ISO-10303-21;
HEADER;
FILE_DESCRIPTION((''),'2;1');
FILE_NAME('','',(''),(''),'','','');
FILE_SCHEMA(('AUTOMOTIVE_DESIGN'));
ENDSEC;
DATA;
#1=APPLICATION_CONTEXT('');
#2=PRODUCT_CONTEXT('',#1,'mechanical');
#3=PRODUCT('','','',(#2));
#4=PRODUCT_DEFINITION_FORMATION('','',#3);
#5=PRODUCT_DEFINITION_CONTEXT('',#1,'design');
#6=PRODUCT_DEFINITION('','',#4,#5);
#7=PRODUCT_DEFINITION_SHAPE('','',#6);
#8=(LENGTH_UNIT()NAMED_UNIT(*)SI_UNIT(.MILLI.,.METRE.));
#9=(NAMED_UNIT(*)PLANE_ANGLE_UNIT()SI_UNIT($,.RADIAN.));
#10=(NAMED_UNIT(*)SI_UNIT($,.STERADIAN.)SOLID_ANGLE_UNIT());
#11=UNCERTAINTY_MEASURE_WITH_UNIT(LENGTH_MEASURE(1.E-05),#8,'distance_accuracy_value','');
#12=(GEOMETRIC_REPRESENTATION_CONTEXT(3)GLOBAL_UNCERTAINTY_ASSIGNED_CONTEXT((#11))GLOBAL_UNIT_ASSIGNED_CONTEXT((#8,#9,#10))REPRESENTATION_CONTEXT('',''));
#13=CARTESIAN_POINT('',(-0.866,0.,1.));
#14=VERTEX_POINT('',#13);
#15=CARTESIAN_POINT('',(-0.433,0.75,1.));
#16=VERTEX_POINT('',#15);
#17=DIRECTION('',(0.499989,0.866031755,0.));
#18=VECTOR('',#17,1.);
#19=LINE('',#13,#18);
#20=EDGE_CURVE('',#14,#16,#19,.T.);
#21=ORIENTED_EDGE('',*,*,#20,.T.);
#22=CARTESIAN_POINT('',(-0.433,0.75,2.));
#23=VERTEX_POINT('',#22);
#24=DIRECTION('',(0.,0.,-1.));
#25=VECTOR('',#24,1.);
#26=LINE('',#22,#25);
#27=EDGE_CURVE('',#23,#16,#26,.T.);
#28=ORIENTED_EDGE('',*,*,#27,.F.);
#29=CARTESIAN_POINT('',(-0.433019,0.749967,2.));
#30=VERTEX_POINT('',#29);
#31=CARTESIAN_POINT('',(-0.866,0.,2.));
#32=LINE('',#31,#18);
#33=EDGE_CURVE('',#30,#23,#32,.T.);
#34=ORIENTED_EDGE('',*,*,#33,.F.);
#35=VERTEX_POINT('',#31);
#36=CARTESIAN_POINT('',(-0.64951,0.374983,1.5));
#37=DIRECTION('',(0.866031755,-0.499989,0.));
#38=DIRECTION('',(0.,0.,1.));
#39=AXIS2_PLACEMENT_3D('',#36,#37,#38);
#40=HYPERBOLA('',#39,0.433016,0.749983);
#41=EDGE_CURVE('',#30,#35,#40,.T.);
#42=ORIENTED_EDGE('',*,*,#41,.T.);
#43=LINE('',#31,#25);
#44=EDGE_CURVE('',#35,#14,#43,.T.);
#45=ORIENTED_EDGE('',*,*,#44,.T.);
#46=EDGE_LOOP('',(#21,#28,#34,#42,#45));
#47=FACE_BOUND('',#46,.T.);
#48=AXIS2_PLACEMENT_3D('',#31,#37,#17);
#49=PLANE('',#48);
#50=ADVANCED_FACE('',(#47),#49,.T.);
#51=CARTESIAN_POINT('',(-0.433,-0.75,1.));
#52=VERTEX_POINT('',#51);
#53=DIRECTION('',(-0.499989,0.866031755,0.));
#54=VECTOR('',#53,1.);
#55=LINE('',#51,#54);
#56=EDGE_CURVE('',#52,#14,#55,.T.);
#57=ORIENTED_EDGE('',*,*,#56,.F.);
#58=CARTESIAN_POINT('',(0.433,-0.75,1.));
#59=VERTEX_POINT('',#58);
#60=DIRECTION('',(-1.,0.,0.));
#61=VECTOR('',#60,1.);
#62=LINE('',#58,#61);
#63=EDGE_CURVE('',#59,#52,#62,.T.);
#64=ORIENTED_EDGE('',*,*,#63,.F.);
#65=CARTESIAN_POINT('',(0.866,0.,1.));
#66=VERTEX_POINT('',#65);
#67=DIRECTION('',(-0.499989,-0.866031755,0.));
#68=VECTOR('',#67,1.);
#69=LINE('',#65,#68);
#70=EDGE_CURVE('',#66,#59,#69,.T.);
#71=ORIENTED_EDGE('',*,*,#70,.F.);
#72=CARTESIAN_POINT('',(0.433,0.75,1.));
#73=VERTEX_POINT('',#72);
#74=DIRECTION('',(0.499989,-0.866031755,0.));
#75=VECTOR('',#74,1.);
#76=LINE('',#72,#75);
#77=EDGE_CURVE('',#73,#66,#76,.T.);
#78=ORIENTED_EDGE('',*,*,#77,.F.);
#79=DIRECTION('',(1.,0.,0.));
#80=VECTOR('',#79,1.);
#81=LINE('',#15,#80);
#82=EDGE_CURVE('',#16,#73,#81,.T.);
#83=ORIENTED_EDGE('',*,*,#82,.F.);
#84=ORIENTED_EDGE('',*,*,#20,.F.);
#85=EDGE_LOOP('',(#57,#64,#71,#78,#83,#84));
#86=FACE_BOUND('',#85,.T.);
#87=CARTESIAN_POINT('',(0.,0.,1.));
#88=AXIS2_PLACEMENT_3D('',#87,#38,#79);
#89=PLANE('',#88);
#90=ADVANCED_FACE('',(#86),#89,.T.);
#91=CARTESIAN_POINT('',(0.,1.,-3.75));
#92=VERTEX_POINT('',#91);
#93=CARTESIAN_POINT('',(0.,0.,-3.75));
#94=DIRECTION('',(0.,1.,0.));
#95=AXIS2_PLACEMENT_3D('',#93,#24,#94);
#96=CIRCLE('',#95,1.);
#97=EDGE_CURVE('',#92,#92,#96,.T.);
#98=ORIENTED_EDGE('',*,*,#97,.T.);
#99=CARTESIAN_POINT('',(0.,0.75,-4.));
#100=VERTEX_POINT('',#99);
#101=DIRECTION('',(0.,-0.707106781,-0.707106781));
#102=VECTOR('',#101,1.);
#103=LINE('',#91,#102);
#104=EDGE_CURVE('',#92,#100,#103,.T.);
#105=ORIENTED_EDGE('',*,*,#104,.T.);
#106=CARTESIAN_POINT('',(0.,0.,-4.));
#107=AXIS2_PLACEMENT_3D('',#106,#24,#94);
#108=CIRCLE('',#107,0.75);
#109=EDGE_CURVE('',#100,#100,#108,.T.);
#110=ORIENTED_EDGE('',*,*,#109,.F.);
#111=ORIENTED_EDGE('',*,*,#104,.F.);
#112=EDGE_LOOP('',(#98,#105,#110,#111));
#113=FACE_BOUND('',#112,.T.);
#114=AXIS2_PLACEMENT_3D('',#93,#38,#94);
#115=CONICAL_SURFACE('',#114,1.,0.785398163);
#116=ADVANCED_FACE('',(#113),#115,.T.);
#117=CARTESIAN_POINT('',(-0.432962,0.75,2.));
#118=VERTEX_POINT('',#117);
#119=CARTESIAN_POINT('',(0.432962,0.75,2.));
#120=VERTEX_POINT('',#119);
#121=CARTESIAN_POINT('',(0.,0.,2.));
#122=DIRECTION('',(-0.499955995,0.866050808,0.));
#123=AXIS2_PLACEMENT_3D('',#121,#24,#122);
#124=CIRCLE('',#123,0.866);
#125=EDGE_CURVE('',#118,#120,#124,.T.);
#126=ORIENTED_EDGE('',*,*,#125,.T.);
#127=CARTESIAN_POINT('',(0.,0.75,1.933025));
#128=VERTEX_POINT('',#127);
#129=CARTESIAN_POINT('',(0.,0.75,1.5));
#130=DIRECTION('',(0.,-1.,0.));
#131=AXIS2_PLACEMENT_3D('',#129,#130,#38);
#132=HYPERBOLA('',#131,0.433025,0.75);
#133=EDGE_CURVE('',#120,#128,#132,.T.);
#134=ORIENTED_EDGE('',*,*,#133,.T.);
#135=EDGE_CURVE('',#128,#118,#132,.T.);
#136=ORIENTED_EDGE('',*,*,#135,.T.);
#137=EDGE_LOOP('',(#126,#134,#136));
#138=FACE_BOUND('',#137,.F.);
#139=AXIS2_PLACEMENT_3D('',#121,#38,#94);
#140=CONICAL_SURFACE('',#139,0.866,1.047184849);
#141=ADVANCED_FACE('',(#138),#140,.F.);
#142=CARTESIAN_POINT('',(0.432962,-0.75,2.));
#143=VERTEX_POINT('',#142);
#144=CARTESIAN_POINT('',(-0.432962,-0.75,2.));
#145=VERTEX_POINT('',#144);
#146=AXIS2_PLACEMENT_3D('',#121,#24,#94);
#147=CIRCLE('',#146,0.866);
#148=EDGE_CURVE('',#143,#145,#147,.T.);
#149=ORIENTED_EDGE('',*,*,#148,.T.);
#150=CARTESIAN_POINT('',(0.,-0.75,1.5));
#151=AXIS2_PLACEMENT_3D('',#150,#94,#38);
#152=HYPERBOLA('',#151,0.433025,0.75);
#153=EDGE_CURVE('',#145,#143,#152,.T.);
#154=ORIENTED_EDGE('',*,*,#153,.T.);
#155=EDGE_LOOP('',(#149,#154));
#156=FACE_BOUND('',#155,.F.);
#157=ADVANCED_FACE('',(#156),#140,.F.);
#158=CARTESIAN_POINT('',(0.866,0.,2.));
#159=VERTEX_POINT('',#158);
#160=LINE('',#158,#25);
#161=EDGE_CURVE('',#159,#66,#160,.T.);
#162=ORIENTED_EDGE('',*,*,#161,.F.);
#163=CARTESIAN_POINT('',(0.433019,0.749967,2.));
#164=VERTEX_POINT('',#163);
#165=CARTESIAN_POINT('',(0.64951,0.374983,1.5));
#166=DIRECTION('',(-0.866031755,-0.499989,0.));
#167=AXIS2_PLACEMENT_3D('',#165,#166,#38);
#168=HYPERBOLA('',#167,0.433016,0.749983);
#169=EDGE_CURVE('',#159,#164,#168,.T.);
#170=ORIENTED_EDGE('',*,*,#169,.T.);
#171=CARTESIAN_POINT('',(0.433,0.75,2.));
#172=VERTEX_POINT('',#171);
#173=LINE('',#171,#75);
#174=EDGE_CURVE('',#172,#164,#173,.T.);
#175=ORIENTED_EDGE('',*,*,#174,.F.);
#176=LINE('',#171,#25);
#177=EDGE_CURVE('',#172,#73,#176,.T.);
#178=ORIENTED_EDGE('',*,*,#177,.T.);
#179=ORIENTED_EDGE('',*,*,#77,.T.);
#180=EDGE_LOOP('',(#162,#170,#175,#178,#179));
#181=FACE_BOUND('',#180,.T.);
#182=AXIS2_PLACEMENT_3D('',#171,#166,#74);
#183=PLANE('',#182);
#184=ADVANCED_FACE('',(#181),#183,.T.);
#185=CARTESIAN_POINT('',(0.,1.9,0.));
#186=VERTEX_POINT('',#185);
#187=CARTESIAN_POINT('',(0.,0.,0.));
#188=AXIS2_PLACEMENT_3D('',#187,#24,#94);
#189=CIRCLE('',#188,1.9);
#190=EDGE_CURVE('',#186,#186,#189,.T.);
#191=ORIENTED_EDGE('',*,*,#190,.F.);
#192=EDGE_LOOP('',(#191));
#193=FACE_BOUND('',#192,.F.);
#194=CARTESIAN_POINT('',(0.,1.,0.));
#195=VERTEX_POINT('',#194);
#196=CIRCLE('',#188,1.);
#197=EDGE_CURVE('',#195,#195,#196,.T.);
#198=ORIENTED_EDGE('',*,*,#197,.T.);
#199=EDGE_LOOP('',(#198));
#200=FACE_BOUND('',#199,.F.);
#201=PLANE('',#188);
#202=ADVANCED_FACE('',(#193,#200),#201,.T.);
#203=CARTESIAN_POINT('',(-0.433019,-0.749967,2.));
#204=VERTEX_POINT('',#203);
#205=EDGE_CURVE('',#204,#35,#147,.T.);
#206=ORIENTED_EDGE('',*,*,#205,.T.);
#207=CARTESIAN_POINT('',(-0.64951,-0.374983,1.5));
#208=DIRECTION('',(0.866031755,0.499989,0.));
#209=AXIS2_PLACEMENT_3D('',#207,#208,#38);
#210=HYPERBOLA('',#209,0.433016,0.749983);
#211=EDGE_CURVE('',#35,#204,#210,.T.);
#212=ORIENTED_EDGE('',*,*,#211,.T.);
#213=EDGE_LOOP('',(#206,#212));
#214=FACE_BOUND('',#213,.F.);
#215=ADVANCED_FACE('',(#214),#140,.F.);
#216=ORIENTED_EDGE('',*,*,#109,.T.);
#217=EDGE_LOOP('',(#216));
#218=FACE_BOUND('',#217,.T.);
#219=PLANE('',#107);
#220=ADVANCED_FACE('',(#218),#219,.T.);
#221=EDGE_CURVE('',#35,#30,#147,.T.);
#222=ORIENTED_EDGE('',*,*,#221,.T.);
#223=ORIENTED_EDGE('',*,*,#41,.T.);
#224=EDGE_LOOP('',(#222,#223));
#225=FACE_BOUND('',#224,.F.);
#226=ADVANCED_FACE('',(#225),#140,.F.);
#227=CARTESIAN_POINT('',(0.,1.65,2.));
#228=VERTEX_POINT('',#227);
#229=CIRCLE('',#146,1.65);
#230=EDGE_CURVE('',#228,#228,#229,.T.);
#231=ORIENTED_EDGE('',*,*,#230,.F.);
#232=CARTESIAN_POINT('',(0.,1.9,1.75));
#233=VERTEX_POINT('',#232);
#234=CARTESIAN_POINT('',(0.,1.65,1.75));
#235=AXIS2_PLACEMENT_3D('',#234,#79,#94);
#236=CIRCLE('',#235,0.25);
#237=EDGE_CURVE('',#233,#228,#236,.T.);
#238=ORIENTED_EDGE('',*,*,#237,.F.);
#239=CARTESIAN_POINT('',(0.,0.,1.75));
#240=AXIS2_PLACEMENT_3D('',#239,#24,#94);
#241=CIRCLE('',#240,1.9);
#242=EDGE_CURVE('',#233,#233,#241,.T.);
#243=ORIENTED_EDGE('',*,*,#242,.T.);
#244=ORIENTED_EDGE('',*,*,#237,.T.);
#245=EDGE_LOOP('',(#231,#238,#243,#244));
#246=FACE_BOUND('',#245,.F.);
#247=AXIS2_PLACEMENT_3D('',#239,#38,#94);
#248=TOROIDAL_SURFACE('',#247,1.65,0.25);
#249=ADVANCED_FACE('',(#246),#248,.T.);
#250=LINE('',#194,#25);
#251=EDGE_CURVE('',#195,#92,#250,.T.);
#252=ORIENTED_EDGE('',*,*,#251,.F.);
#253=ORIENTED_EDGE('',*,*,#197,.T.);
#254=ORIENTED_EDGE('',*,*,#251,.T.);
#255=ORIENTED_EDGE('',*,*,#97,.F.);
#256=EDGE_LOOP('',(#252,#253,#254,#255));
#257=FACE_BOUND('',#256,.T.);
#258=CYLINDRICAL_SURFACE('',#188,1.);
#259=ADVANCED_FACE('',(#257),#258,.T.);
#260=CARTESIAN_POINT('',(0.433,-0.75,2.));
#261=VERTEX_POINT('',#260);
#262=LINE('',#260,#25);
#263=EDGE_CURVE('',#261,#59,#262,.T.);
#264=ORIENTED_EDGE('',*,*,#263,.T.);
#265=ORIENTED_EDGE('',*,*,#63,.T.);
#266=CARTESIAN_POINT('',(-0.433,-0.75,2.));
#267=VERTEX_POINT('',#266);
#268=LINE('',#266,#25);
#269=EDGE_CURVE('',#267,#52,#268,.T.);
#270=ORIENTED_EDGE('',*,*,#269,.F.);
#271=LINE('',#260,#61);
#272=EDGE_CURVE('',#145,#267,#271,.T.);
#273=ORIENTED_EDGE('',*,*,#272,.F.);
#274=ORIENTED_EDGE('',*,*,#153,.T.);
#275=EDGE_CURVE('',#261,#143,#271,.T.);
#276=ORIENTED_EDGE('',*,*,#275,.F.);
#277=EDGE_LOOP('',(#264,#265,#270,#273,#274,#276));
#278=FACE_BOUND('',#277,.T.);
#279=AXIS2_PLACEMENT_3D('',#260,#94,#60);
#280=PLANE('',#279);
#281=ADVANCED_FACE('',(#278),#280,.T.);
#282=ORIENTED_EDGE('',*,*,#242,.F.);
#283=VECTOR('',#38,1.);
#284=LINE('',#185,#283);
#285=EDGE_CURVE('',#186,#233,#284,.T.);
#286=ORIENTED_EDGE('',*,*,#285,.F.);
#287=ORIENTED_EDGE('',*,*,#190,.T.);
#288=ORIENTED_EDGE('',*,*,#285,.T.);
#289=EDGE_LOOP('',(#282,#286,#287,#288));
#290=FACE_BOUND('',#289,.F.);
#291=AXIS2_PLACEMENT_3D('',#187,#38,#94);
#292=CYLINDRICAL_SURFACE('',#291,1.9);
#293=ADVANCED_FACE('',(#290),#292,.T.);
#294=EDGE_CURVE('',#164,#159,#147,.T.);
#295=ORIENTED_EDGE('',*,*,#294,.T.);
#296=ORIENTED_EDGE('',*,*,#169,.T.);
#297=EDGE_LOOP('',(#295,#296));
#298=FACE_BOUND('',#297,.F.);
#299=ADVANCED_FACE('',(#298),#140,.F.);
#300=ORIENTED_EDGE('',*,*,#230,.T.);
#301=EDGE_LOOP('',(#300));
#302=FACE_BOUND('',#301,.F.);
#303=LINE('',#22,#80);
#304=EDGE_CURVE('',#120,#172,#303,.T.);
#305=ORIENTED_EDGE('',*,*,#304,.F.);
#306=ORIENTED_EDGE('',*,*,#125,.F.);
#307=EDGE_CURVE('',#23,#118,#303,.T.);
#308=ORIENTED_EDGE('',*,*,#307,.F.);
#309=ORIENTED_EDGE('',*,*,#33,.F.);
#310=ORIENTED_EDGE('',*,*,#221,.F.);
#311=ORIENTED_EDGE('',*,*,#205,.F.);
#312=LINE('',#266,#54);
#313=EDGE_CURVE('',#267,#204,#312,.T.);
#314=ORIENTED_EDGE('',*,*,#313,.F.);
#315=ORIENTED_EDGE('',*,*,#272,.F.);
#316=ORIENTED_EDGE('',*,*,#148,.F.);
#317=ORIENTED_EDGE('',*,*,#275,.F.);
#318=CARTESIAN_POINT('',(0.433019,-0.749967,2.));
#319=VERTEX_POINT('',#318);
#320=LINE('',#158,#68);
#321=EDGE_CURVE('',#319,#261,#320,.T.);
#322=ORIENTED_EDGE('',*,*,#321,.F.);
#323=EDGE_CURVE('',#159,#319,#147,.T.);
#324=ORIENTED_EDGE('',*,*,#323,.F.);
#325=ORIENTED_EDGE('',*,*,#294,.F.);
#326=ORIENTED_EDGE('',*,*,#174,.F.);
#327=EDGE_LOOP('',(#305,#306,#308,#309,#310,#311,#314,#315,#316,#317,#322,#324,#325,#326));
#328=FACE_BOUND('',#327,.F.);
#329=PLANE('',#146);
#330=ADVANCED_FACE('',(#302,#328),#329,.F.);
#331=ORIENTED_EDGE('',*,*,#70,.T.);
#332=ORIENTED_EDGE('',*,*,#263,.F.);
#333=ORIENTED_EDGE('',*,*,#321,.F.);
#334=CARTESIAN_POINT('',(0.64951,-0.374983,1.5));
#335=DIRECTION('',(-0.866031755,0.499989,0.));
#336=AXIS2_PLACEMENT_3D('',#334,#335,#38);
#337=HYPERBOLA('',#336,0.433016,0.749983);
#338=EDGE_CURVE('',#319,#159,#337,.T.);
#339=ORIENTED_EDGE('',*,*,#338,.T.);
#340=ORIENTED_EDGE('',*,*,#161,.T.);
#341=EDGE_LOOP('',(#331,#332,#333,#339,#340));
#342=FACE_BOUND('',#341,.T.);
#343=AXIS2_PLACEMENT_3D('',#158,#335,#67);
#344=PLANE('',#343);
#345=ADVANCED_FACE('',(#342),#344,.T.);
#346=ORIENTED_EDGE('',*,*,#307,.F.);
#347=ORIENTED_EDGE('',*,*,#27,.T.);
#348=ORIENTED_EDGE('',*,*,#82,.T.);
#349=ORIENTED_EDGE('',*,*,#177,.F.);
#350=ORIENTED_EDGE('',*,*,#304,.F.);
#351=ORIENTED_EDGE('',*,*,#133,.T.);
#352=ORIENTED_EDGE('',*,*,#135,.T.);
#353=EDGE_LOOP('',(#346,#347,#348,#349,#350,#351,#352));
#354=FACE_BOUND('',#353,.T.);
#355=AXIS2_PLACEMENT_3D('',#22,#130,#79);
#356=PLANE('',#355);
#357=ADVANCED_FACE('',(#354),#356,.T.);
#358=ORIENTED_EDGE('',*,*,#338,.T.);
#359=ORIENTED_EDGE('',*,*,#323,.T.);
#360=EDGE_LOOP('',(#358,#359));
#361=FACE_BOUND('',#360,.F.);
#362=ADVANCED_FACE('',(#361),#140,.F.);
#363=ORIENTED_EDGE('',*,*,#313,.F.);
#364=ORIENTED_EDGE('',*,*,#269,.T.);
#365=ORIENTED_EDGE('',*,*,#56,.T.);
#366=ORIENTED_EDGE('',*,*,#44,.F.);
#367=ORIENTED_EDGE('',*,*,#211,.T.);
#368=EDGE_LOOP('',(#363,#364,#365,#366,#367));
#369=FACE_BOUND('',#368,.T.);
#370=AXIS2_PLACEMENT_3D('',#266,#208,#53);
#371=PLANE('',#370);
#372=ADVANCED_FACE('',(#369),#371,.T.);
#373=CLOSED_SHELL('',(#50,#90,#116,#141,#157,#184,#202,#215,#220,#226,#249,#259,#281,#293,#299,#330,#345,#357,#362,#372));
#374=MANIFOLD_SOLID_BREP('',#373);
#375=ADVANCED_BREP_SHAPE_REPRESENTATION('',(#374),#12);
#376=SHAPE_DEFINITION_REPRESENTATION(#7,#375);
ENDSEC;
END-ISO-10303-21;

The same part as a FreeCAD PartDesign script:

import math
import FreeCAD as App
import Part
import Sketcher
Q = App.Units.Quantity


def edges_at(feature, points):
    """Names of the edges that pass closest to the given points."""
    edges = feature.Shape.Edges
    near = lambda p: min(range(len(edges)), key=lambda i: edges[i].distToShape(Part.Vertex(*p))[0])
    return sorted({f"Edge{near(p) + 1}" for p in points})

doc = App.newDocument("Part")
body = doc.addObject("PartDesign::Body", "Body")

# Sketch on YZ plane
sketch1 = body.newObject("Sketcher::SketchObject", "Sketch")
sketch1.AttachmentSupport = (doc.getObject("YZ_Plane"), [""])
sketch1.MapMode = "FlatFace"
sketch1.addGeometry(Part.LineSegment(App.Vector(1, 0, 0), App.Vector(1.9, 0, 0)), False)
sketch1.addGeometry(Part.LineSegment(App.Vector(1.9, 0, 0), App.Vector(1.9, 1.75, 0)), False)
sketch1.addGeometry(Part.ArcOfCircle(Part.Circle(App.Vector(1.65, 1.75, 0), App.Vector(0, 0, 1), 0.25), math.radians(0), math.radians(90)), False)
sketch1.addGeometry(Part.LineSegment(App.Vector(1.65, 2, 0), App.Vector(0.866, 2, 0)), False)
sketch1.addGeometry(Part.LineSegment(App.Vector(0.866, 2, 0), App.Vector(0, 1.5, 0)), False)
sketch1.addGeometry(Part.LineSegment(App.Vector(0, 1.5, 0), App.Vector(0, -4, 0)), False)
sketch1.addGeometry(Part.LineSegment(App.Vector(0, -4, 0), App.Vector(1, -4, 0)), False)
sketch1.addGeometry(Part.LineSegment(App.Vector(1, -4, 0), App.Vector(1, 0, 0)), False)
sketch1.addConstraint(Sketcher.Constraint("Coincident", 0, 2, 1, 1))
sketch1.addConstraint(Sketcher.Constraint("Tangent", 1, 2, 2, 1))
sketch1.addConstraint(Sketcher.Constraint("Tangent", 2, 2, 3, 1))
sketch1.addConstraint(Sketcher.Constraint("Coincident", 3, 2, 4, 1))
sketch1.addConstraint(Sketcher.Constraint("Coincident", 4, 2, 5, 1))
sketch1.addConstraint(Sketcher.Constraint("Coincident", 5, 2, 6, 1))
sketch1.addConstraint(Sketcher.Constraint("Coincident", 6, 2, 7, 1))
sketch1.addConstraint(Sketcher.Constraint("Coincident", 7, 2, 0, 1))
sketch1.addConstraint(Sketcher.Constraint("Horizontal", 0))
sketch1.addConstraint(Sketcher.Constraint("Vertical", 1))
sketch1.addConstraint(Sketcher.Constraint("Horizontal", 3))
sketch1.addConstraint(Sketcher.Constraint("Vertical", 5))
sketch1.addConstraint(Sketcher.Constraint("Horizontal", 6))
sketch1.addConstraint(Sketcher.Constraint("Vertical", 7))
sketch1.addConstraint(Sketcher.Constraint("PointOnObject", 0, 2, -1))
sketch1.addConstraint(Sketcher.Constraint("PointOnObject", 4, 2, -2))
sketch1.addConstraint(Sketcher.Constraint("DistanceY", 7, 1, 7, 2, 4.0))
sketch1.addConstraint(Sketcher.Constraint("Radius", 2, 0.25))
sketch1.addConstraint(Sketcher.Constraint("DistanceY", -1, 1, 2, 2, 2.0))
sketch1.addConstraint(Sketcher.Constraint("DistanceY", -1, 1, 4, 2, 1.5))
sketch1.addConstraint(Sketcher.Constraint("DistanceX", 6, 1, 6, 2, 1.0))
sketch1.addConstraint(Sketcher.Constraint("Angle", 4, Q("-149.9993 deg")))
sketch1.addConstraint(Sketcher.Constraint("DistanceX", 0, 1, 0, 2, 0.9))
revolution = body.newObject("PartDesign::Revolution", "Revolution")
revolution.Profile = sketch1
revolution.ReferenceAxis = (sketch1, ["V_Axis"])
revolution.Angle = 360

# Sketch on XY plane
sketch2 = body.newObject("Sketcher::SketchObject", "Sketch001")
sketch2.AttachmentSupport = (doc.getObject("XY_Plane"), [""])
sketch2.MapMode = "FlatFace"
sketch2.AttachmentOffset = App.Placement(App.Vector(0, 0, 2), App.Rotation())
sketch2.addGeometry(Part.LineSegment(App.Vector(0.433, -0.75, 0), App.Vector(0.866, 0, 0)), False)
sketch2.addGeometry(Part.LineSegment(App.Vector(0.866, 0, 0), App.Vector(0.433, 0.75, 0)), False)
sketch2.addGeometry(Part.LineSegment(App.Vector(0.433, 0.75, 0), App.Vector(-0.433, 0.75, 0)), False)
sketch2.addGeometry(Part.LineSegment(App.Vector(-0.433, 0.75, 0), App.Vector(-0.866, 0, 0)), False)
sketch2.addGeometry(Part.LineSegment(App.Vector(-0.866, 0, 0), App.Vector(-0.433, -0.75, 0)), False)
sketch2.addGeometry(Part.LineSegment(App.Vector(-0.433, -0.75, 0), App.Vector(0.433, -0.75, 0)), False)
sketch2.addConstraint(Sketcher.Constraint("Coincident", 0, 2, 1, 1))
sketch2.addConstraint(Sketcher.Constraint("Coincident", 1, 2, 2, 1))
sketch2.addConstraint(Sketcher.Constraint("Coincident", 2, 2, 3, 1))
sketch2.addConstraint(Sketcher.Constraint("Coincident", 3, 2, 4, 1))
sketch2.addConstraint(Sketcher.Constraint("Coincident", 4, 2, 5, 1))
sketch2.addConstraint(Sketcher.Constraint("Coincident", 5, 2, 0, 1))
sketch2.addConstraint(Sketcher.Constraint("Horizontal", 2))
sketch2.addConstraint(Sketcher.Constraint("Horizontal", 5))
sketch2.addConstraint(Sketcher.Constraint("Symmetric", 0, 2, 3, 2, -1, 1))
sketch2.addConstraint(Sketcher.Constraint("Symmetric", 1, 2, 4, 2, -1, 1))
sketch2.addConstraint(Sketcher.Constraint("PointOnObject", 0, 2, -1))
sketch2.addConstraint(Sketcher.Constraint("Parallel", 0, 3))
sketch2.addConstraint(Sketcher.Constraint("Vertical", 2, 2, 4, 2))
sketch2.addConstraint(Sketcher.Constraint("DistanceY", 4, 2, 2, 2, 1.5))
sketch2.addConstraint(Sketcher.Constraint("Angle", 0, Q("60.0007 deg")))
sketch2.addConstraint(Sketcher.Constraint("DistanceX", 2, 2, 2, 1, 0.866))
pocket1 = body.newObject("PartDesign::Pocket", "Pocket")
pocket1.Profile = sketch2
pocket1.Length = 1
doc.recompute()

chamfer = body.newObject("PartDesign::Chamfer", "Chamfer")
chamfer.Base = (pocket1, edges_at(pocket1, [(0, -1, -4)]))
chamfer.Size = 0.25

doc.recompute()
